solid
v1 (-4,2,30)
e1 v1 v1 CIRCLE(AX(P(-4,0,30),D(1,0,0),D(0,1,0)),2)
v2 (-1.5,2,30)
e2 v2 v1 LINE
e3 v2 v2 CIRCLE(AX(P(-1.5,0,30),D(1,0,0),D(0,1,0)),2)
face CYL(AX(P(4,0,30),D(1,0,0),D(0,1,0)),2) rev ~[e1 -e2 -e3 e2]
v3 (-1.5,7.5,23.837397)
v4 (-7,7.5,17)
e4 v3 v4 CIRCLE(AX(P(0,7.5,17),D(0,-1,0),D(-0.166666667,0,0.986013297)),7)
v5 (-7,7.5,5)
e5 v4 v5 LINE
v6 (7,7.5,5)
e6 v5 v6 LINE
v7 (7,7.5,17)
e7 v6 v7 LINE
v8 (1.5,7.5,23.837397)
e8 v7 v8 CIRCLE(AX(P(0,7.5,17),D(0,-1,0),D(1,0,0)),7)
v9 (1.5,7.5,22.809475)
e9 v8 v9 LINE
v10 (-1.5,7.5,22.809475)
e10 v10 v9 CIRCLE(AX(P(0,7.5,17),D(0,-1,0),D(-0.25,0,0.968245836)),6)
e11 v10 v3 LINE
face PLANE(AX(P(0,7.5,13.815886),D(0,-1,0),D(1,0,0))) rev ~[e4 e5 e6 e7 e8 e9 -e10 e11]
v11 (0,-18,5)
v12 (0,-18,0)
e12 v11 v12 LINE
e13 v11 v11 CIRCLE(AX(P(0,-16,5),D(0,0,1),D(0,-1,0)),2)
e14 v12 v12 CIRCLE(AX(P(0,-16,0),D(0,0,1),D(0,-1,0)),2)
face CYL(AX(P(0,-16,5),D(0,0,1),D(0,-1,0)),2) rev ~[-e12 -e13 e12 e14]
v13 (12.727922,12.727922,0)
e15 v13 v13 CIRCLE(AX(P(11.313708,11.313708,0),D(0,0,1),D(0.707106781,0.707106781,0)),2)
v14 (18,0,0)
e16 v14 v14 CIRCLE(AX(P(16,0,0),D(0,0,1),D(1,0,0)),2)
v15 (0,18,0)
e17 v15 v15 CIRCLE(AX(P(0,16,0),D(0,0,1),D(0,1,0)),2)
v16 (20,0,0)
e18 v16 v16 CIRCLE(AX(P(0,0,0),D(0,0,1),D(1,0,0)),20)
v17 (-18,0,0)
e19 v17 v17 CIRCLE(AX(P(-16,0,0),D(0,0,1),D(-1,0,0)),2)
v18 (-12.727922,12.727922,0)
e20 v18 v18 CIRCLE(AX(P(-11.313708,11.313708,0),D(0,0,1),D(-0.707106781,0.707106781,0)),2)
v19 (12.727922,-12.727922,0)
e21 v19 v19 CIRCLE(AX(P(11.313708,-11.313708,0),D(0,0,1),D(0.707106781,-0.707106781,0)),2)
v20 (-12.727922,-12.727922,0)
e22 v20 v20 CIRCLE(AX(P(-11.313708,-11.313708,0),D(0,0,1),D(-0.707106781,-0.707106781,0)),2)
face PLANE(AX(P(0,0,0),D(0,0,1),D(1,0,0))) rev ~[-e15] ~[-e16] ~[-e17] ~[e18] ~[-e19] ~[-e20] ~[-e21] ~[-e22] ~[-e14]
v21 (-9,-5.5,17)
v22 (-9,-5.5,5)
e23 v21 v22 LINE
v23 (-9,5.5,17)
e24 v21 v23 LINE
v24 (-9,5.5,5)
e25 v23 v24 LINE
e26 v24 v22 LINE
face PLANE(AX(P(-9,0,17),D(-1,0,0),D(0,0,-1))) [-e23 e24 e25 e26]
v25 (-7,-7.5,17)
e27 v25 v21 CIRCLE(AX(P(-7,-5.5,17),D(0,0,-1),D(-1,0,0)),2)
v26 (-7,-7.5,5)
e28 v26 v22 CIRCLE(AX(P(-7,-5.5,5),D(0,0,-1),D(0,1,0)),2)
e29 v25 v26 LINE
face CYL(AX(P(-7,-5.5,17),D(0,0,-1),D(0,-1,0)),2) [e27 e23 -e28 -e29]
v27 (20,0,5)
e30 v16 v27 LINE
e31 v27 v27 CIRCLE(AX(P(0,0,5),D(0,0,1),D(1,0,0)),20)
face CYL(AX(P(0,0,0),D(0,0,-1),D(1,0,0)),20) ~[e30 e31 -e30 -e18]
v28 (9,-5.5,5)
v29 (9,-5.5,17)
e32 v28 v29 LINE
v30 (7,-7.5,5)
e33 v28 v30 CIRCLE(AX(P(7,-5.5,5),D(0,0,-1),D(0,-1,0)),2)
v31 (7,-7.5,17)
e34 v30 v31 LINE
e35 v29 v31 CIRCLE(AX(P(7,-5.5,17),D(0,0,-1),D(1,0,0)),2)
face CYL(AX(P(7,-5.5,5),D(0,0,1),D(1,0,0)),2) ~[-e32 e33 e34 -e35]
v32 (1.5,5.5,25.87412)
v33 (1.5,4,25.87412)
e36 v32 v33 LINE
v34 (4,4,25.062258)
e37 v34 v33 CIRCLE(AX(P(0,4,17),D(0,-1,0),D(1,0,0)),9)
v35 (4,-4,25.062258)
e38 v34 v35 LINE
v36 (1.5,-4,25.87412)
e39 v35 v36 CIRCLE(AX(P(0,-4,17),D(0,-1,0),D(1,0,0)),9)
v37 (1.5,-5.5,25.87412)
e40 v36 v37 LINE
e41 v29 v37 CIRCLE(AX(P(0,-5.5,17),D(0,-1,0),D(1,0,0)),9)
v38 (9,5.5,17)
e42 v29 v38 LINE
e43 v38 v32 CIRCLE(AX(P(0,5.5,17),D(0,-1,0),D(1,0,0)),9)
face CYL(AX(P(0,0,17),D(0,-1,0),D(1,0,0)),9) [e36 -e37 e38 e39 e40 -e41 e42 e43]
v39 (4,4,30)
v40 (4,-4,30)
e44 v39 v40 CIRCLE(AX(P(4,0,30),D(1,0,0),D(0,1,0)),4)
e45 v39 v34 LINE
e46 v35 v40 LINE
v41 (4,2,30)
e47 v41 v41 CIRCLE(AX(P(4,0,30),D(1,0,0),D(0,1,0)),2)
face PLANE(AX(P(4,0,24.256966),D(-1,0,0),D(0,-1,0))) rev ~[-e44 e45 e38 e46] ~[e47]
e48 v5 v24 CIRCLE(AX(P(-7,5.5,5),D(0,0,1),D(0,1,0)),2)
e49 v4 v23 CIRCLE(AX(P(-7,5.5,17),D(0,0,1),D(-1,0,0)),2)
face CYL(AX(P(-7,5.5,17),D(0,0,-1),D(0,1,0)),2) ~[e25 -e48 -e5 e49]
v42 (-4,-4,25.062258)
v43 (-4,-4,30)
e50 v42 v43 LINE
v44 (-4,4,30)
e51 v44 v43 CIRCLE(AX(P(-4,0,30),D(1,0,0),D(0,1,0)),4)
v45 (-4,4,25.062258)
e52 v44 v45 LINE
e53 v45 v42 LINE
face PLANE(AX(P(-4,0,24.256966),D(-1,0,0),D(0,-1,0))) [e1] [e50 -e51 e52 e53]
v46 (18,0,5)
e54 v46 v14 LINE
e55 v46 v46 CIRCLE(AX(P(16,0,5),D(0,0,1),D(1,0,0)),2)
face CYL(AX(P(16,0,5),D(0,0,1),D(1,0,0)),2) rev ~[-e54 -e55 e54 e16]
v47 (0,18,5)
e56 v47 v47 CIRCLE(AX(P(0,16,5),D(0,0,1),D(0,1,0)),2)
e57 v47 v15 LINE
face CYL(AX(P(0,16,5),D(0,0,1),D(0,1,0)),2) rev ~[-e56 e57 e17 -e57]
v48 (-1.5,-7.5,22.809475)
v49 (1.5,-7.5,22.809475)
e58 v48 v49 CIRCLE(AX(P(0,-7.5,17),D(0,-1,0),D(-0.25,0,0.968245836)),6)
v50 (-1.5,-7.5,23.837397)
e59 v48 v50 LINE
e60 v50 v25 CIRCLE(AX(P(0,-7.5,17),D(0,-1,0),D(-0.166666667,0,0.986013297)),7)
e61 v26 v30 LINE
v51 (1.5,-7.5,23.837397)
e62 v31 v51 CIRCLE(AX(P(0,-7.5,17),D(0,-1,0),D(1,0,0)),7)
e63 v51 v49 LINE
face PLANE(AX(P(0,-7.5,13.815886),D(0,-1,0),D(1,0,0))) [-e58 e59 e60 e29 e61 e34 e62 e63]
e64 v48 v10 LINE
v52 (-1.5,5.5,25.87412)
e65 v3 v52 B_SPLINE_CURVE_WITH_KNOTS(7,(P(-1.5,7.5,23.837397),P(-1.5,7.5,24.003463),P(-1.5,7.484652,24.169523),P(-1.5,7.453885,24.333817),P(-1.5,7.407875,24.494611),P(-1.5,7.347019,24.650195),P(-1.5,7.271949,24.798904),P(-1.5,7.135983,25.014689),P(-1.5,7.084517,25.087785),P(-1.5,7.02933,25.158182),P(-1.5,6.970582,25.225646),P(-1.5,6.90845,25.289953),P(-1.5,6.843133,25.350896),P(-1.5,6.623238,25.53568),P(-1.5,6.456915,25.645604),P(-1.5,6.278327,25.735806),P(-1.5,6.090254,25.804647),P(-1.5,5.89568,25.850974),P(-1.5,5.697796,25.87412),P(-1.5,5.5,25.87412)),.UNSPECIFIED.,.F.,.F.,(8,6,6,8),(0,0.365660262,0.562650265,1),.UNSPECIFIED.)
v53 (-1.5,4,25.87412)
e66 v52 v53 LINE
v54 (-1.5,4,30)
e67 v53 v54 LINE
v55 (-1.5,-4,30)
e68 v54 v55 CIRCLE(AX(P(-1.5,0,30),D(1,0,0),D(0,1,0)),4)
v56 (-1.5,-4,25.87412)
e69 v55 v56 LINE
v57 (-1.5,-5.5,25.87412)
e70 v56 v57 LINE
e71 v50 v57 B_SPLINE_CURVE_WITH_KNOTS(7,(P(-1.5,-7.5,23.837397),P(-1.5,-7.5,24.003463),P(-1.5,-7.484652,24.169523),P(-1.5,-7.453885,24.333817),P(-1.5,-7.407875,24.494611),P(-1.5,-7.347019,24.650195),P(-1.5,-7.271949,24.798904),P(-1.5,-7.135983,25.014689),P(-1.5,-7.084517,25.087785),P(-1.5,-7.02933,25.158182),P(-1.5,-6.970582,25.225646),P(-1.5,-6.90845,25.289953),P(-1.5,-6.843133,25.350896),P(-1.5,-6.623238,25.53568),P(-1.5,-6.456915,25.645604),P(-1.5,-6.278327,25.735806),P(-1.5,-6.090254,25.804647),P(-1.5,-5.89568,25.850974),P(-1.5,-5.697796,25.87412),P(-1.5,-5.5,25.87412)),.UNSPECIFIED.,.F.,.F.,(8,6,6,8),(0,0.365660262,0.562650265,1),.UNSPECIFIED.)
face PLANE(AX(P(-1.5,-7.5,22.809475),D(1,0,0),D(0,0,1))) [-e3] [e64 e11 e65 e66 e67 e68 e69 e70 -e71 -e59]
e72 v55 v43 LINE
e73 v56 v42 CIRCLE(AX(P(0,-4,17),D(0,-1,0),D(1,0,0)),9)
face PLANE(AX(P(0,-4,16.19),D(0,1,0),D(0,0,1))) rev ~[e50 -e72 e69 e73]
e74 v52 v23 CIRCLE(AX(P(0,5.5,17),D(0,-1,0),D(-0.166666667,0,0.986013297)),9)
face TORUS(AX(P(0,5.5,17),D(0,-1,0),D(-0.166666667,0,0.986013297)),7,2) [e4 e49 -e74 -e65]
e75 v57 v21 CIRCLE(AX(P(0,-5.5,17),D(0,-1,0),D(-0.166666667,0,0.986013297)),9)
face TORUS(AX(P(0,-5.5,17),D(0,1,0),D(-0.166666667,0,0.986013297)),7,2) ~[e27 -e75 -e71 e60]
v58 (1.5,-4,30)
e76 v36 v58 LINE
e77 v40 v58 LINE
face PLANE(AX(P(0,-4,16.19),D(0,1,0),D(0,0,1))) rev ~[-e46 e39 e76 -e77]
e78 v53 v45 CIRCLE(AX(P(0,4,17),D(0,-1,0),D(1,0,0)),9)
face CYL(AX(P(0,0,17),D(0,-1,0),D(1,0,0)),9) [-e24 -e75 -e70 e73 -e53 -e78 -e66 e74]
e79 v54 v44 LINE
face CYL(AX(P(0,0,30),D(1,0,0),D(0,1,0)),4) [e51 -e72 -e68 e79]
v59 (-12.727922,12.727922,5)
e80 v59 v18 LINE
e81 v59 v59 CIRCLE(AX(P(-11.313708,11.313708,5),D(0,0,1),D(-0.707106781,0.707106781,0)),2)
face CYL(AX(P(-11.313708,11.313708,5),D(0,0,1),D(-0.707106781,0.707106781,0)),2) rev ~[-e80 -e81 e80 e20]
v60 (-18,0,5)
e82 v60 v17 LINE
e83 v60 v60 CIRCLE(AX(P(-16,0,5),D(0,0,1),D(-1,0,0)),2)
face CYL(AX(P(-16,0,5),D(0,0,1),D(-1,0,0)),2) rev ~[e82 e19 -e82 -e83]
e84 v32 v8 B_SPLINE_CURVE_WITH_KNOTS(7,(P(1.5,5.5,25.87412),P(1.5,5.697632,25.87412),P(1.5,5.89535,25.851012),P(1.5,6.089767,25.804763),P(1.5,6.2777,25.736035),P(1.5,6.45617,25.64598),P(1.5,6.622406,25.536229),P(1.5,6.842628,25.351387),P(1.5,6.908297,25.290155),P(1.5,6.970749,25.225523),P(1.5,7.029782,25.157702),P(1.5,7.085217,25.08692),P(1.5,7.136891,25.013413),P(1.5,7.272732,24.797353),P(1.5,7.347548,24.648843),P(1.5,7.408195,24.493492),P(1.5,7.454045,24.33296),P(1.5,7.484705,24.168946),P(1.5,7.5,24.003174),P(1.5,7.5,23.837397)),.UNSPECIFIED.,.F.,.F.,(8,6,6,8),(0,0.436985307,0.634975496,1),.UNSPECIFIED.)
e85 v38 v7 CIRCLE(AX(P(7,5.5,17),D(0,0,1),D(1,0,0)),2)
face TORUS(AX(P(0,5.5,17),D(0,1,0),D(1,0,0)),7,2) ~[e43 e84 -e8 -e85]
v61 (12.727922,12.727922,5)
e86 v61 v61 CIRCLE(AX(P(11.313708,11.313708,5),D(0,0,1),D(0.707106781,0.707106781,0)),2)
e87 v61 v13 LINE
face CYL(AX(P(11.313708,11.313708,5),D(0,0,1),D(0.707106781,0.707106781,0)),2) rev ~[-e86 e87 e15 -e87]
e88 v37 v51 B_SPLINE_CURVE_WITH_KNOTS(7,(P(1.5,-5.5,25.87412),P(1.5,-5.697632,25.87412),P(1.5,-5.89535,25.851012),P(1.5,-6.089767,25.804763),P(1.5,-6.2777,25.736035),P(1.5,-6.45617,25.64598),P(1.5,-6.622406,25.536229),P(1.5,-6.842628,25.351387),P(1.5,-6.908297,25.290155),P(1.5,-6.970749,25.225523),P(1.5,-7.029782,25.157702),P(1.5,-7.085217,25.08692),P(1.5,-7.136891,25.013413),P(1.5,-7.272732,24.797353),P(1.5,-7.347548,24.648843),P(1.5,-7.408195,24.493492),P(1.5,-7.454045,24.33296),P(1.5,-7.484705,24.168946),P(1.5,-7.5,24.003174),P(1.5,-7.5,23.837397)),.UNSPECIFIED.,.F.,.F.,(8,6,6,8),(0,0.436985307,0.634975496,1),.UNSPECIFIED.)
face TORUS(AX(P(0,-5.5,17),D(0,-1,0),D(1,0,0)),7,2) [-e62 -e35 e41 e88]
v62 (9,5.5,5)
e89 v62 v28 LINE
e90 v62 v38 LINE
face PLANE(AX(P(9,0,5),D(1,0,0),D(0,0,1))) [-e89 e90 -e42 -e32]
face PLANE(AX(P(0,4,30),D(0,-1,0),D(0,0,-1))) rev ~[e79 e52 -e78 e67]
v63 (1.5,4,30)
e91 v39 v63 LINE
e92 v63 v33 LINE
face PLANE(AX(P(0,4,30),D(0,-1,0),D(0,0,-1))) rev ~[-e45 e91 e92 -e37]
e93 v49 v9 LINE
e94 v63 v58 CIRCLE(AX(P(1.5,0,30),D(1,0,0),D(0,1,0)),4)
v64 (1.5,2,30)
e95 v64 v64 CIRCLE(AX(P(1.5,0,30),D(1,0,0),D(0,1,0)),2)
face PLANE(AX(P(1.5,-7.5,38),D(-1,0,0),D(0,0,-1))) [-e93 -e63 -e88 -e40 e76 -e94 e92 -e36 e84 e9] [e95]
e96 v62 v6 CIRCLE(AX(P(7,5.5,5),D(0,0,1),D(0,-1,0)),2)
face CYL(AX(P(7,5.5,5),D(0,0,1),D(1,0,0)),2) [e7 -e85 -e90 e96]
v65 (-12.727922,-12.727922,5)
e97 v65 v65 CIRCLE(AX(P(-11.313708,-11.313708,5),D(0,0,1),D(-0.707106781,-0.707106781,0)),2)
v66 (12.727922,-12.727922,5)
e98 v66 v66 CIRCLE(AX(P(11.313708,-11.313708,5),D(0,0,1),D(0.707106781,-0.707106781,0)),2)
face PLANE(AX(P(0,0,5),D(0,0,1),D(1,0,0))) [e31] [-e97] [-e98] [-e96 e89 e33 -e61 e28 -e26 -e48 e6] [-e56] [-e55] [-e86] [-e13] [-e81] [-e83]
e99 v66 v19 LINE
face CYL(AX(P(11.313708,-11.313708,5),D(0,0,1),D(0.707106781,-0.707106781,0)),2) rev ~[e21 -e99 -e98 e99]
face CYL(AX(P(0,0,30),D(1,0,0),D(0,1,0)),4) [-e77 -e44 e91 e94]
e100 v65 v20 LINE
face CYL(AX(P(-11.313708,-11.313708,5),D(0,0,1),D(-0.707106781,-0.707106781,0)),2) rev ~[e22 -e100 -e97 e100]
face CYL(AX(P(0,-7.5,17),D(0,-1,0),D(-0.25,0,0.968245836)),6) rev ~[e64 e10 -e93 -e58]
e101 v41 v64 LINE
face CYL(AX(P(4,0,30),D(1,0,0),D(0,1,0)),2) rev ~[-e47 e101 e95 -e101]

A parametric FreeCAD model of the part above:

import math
import FreeCAD as App
import Part
import Sketcher

V = App.Vector
Q = App.Units.Quantity


def edges_at(feature, points):
    """Names of the edges that pass closest to the given points."""
    edges = feature.Shape.Edges
    near = lambda p: min(range(len(edges)), key=lambda i: edges[i].distToShape(Part.Vertex(*p))[0])
    return sorted({f"Edge{near(p) + 1}" for p in points})

doc = App.newDocument("Part")
body = doc.addObject("PartDesign::Body", "Body")

sketch1 = body.newObject("Sketcher::SketchObject", "Sketch")
sketch1.AttachmentSupport = (doc.getObject("XY_Plane"), [""])
sketch1.MapMode = "FlatFace"
sketch1.addGeometry(Part.Circle(V(0, 0, 0), V(0, 0, 1), 20), False)
sketch1.addConstraint(Sketcher.Constraint("Coincident", 0, 3, -1, 1))
sketch1.addConstraint(Sketcher.Constraint("Diameter", 0, Q("40 mm")))
pad1 = body.newObject("PartDesign::Pad", "Pad")
pad1.Profile = sketch1
pad1.Length = 5

sketch2 = body.newObject("Sketcher::SketchObject", "Sketch001")
sketch2.AttachmentSupport = (doc.getObject("XZ_Plane"), [""])
sketch2.MapMode = "FlatFace"
sketch2.addGeometry(Part.LineSegment(V(-9, 17, 0), V(-9, 5, 0)), False)
sketch2.addGeometry(Part.LineSegment(V(-9, 5, 0), V(9, 5, 0)), False)
sketch2.addGeometry(Part.LineSegment(V(9, 5, 0), V(9, 17, 0)), False)
sketch2.addGeometry(Part.ArcOfCircle(Part.Circle(V(0, 17, 0), V(0, 0, 1), 9), math.radians(0), math.radians(180)), False)
sketch2.addConstraint(Sketcher.Constraint("Coincident", 0, 2, 1, 1))
sketch2.addConstraint(Sketcher.Constraint("Coincident", 1, 2, 2, 1))
sketch2.addConstraint(Sketcher.Constraint("Tangent", 2, 2, 3, 1))
sketch2.addConstraint(Sketcher.Constraint("Tangent", 3, 2, 0, 1))
sketch2.addConstraint(Sketcher.Constraint("Vertical", 0))
sketch2.addConstraint(Sketcher.Constraint("Horizontal", 1))
sketch2.addConstraint(Sketcher.Constraint("Vertical", 2))
sketch2.addConstraint(Sketcher.Constraint("PointOnObject", 3, 3, -2))
sketch2.addConstraint(Sketcher.Constraint("Radius", 3, Q("9 mm")))
sketch2.addConstraint(Sketcher.Constraint("DistanceY", 0, 2, 0, 1, Q("12 mm")))
sketch2.addConstraint(Sketcher.Constraint("DistanceY", -1, 1, 3, 3, Q("17 mm")))
pad2 = body.newObject("PartDesign::Pad", "Pad001")
pad2.Profile = sketch2
pad2.Length = 15
pad2.Midplane = True

sketch3 = body.newObject("Sketcher::SketchObject", "Sketch002")
sketch3.AttachmentSupport = (doc.getObject("YZ_Plane"), [""])
sketch3.MapMode = "FlatFace"
sketch3.addGeometry(Part.LineSegment(V(-4, 30, 0), V(-4, 16.2, 0)), False)
sketch3.addGeometry(Part.LineSegment(V(-4, 16.2, 0), V(4, 16.2, 0)), False)
sketch3.addGeometry(Part.LineSegment(V(4, 16.2, 0), V(4, 30, 0)), False)
sketch3.addGeometry(Part.ArcOfCircle(Part.Circle(V(0, 30, 0), V(0, 0, 1), 4), math.radians(0), math.radians(180)), False)
sketch3.addConstraint(Sketcher.Constraint("Coincident", 0, 2, 1, 1))
sketch3.addConstraint(Sketcher.Constraint("Coincident", 1, 2, 2, 1))
sketch3.addConstraint(Sketcher.Constraint("Tangent", 2, 2, 3, 1))
sketch3.addConstraint(Sketcher.Constraint("Tangent", 3, 2, 0, 1))
sketch3.addConstraint(Sketcher.Constraint("Vertical", 0))
sketch3.addConstraint(Sketcher.Constraint("Horizontal", 1))
sketch3.addConstraint(Sketcher.Constraint("Vertical", 2))
sketch3.addConstraint(Sketcher.Constraint("PointOnObject", 3, 3, -2))
sketch3.addConstraint(Sketcher.Constraint("Radius", 3, Q("4 mm")))
sketch3.addConstraint(Sketcher.Constraint("DistanceY", -1, 1, 3, 3, Q("30 mm")))
sketch3.addConstraint(Sketcher.Constraint("DistanceY", 0, 2, 0, 1, Q("13.81 mm")))
pad3 = body.newObject("PartDesign::Pad", "Pad002")
pad3.Profile = sketch3
pad3.Length = 8
pad3.Midplane = True

sketch4 = body.newObject("Sketcher::SketchObject", "Sketch003")
sketch4.AttachmentSupport = (doc.getObject("YZ_Plane"), [""])
sketch4.MapMode = "FlatFace"
sketch4.AttachmentOffset = App.Placement(V(0, 0, 4), App.Rotation())
sketch4.addGeometry(Part.Circle(V(0, 30, 0), V(0, 0, 1), 2), False)
sketch4.addConstraint(Sketcher.Constraint("PointOnObject", 0, 3, -2))
sketch4.addConstraint(Sketcher.Constraint("Diameter", 0, Q("4 mm")))
sketch4.addConstraint(Sketcher.Constraint("DistanceY", -1, 1, 0, 3, Q("30 mm")))
pocket1 = body.newObject("PartDesign::Pocket", "Pocket")
pocket1.Profile = sketch4
pocket1.Type = "ThroughAll"

sketch5 = body.newObject("Sketcher::SketchObject", "Sketch004")
sketch5.AttachmentSupport = (doc.getObject("XZ_Plane"), [""])
sketch5.MapMode = "FlatFace"
sketch5.AttachmentOffset = App.Placement(V(0, 0, 7.5), App.Rotation())
sketch5.addGeometry(Part.ArcOfCircle(Part.Circle(V(0, 17, 0), V(0, 0, 1), 6), math.radians(104), math.radians(436)), False)
sketch5.addGeometry(Part.LineSegment(V(1.5, 22.8, 0), V(1.5, 38, 0)), False)
sketch5.addGeometry(Part.LineSegment(V(1.5, 38, 0), V(-1.5, 38, 0)), False)
sketch5.addGeometry(Part.LineSegment(V(-1.5, 38, 0), V(-1.5, 22.8, 0)), False)
sketch5.addConstraint(Sketcher.Constraint("Coincident", 0, 2, 1, 1))
sketch5.addConstraint(Sketcher.Constraint("Coincident", 1, 2, 2, 1))
sketch5.addConstraint(Sketcher.Constraint("Coincident", 2, 2, 3, 1))
sketch5.addConstraint(Sketcher.Constraint("Coincident", 3, 2, 0, 1))
sketch5.addConstraint(Sketcher.Constraint("Vertical", 1))
sketch5.addConstraint(Sketcher.Constraint("Horizontal", 2))
sketch5.addConstraint(Sketcher.Constraint("Vertical", 3))
sketch5.addConstraint(Sketcher.Constraint("Symmetric", 0, 2, 3, 2, -2))
sketch5.addConstraint(Sketcher.Constraint("Radius", 0, Q("6 mm")))
sketch5.addConstraint(Sketcher.Constraint("DistanceX", 2, 2, 2, 1, Q("3 mm")))
sketch5.addConstraint(Sketcher.Constraint("DistanceY", -1, 1, 0, 3, Q("17 mm")))
sketch5.addConstraint(Sketcher.Constraint("DistanceY", -1, 1, 1, 2, Q("38 mm")))
pocket2 = body.newObject("PartDesign::Pocket", "Pocket001")
pocket2.Profile = sketch5
pocket2.Type = "ThroughAll"

sketch6 = body.newObject("Sketcher::SketchObject", "Sketch005")
sketch6.AttachmentSupport = (doc.getObject("XY_Plane"), [""])
sketch6.MapMode = "FlatFace"
sketch6.AttachmentOffset = App.Placement(V(0, 0, 5), App.Rotation())
sketch6.addGeometry(Part.Circle(V(16, 0, 0), V(0, 0, 1), 2), False)
sketch6.addConstraint(Sketcher.Constraint("PointOnObject", 0, 3, -1))
sketch6.addConstraint(Sketcher.Constraint("Diameter", 0, Q("4 mm")))
sketch6.addConstraint(Sketcher.Constraint("DistanceX", -1, 1, 0, 3, Q("16 mm")))
pocket3 = body.newObject("PartDesign::Pocket", "Pocket002")
pocket3.Profile = sketch6
pocket3.Type = "ThroughAll"
doc.recompute()

polarpattern = body.newObject("PartDesign::PolarPattern", "PolarPattern")
polarpattern.Originals = [pocket3]
polarpattern.Axis = (doc.getObject("Z_Axis"), [""])
polarpattern.Angle = 360
polarpattern.Occurrences = 8
body.Tip = polarpattern
doc.recompute()

fillet = body.newObject("PartDesign::Fillet", "Fillet")
fillet.Base = (polarpattern, edges_at(polarpattern, [
    (-6.874, 7.5, 22.809),
    (-6.874, -7.5, 22.809),
    (6.874, -7.5, 22.809),
    (6.874, 7.5, 22.809),
]))
fillet.Radius = 2

doc.recompute()
